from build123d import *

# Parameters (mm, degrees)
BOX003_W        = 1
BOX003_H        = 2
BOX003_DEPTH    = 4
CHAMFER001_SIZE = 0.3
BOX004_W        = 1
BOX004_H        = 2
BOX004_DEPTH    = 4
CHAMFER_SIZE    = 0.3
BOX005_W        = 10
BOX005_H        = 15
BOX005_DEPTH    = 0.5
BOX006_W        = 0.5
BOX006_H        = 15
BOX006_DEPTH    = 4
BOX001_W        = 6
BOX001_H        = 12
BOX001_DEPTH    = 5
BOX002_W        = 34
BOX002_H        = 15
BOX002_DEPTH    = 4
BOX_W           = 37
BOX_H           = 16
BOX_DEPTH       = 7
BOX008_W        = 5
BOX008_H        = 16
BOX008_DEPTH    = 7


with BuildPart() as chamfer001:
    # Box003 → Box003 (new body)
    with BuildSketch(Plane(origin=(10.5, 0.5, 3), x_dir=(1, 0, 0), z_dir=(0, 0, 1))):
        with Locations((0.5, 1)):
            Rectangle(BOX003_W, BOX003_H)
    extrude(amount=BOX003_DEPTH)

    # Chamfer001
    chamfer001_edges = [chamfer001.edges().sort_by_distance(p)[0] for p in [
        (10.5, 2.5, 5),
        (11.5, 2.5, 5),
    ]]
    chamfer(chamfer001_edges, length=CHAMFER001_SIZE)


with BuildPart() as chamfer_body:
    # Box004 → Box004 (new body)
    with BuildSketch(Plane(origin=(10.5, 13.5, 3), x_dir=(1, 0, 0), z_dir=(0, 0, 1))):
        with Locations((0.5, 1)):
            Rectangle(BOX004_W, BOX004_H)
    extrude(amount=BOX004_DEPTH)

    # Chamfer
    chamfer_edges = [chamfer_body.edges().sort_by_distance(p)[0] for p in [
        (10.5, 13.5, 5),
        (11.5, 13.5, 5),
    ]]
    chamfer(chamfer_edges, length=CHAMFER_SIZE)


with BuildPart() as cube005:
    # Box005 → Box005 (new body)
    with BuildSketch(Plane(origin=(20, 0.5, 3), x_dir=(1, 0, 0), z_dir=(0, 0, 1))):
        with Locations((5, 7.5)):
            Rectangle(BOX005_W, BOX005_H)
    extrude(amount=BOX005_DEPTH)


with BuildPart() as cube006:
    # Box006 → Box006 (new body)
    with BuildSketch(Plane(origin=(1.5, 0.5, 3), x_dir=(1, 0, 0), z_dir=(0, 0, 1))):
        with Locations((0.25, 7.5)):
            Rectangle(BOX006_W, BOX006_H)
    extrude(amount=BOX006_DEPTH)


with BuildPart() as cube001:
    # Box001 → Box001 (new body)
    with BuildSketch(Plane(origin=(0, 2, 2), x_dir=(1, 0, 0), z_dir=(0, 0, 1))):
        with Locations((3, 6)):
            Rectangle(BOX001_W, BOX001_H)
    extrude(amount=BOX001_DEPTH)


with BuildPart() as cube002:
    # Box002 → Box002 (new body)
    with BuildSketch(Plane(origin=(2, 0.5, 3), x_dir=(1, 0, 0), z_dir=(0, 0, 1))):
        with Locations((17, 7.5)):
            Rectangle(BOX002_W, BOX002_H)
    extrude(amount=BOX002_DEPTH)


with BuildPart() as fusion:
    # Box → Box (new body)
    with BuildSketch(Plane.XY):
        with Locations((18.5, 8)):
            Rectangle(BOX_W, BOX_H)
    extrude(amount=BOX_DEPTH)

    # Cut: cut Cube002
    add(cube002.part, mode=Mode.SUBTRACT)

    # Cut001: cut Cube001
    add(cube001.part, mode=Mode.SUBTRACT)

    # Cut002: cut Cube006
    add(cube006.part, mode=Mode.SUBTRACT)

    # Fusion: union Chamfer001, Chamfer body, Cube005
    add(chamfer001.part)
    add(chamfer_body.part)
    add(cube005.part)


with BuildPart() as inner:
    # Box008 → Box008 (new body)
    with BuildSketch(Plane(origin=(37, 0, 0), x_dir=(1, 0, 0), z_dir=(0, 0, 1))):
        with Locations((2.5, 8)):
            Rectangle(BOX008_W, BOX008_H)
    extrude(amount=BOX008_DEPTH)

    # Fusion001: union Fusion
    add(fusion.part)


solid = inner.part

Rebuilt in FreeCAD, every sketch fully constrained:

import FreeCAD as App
import Part
import Sketcher
from FreeCAD import Vector
Q = App.Units.Quantity


def edges_at(feature, points):
    """Names of the edges that pass closest to the given points."""
    edges = feature.Shape.Edges
    near = lambda p: min(range(len(edges)), key=lambda i: edges[i].distToShape(Part.Vertex(*p))[0])
    return sorted({f"Edge{near(p) + 1}" for p in points})

doc = App.newDocument("Part")
params = doc.addObject("Spreadsheet::Sheet", "Params")
for row, (alias, value) in enumerate([
    ("sketch1_width", "1 mm"),
    ("sketch1_height", "2 mm"),
    ("pad1_length", "4 mm"),
    ("chamfer_size", "0.3 mm"),
    ("sketch2_width", "1 mm"),
    ("sketch2_height", "2 mm"),
    ("pad2_length", "4 mm"),
    ("chamfer2_size", "0.3 mm"),
    ("sketch3_width", "10 mm"),
    ("sketch3_height", "15 mm"),
    ("pad3_length", "0.5 mm"),
    ("sketch4_height", "15 mm"),
    ("sketch4_width", "0.5 mm"),
    ("pad4_length", "4 mm"),
    ("sketch5_width", "6 mm"),
    ("sketch5_height", "12 mm"),
    ("pad5_length", "5 mm"),
    ("sketch6_width", "34 mm"),
    ("sketch6_height", "15 mm"),
    ("pad6_length", "4 mm"),
    ("sketch7_width", "37 mm"),
    ("sketch7_height", "16 mm"),
    ("pad7_length", "7 mm"),
    ("sketch8_width", "5 mm"),
    ("sketch8_height", "16 mm"),
    ("pad8_length", "7 mm"),
], start=1):
    params.set(f"A{row}", alias)
    params.set(f"B{row}", "=" + value)
    params.setAlias(f"B{row}", alias)

body = doc.addObject("PartDesign::Body", "Body")

sketch1 = body.newObject("Sketcher::SketchObject", "Sketch")
sketch1.AttachmentSupport = (doc.getObject("XY_Plane"), [""])
sketch1.MapMode = "FlatFace"
sketch1.AttachmentOffset = App.Placement(Vector(0, 0, 3), App.Rotation())
sketch1.addGeometry([
    Part.LineSegment(Vector(10.5, 2.5, 0), Vector(10.5, 0.5, 0)),
    Part.LineSegment(Vector(10.5, 0.5, 0), Vector(11.5, 0.5, 0)),
    Part.LineSegment(Vector(11.5, 0.5, 0), Vector(11.5, 2.5, 0)),
    Part.LineSegment(Vector(11.5, 2.5, 0), Vector(10.5, 2.5, 0)),
], False)
sketch1.addConstraint([
    Sketcher.Constraint("Coincident", 0, 2, 1, 1),
    Sketcher.Constraint("Coincident", 1, 2, 2, 1),
    Sketcher.Constraint("Coincident", 2, 2, 3, 1),
    Sketcher.Constraint("Coincident", 3, 2, 0, 1),
    Sketcher.Constraint("Vertical", 0),
    Sketcher.Constraint("Horizontal", 1),
    Sketcher.Constraint("Vertical", 2),
    Sketcher.Constraint("Horizontal", 3),
    Sketcher.Constraint("DistanceX", 1, 1, 1, 2, Q("1 mm")),
    Sketcher.Constraint("DistanceY", 0, 2, 0, 1, Q("2 mm")),
    Sketcher.Constraint("DistanceX", -1, 1, 0, 2, Q("10.5 mm")),
    Sketcher.Constraint("DistanceY", -1, 1, 0, 2, Q("0.5 mm")),
])
sketch1.setExpression("Constraints[8]", "Params.sketch1_width")
sketch1.setExpression("Constraints[9]", "Params.sketch1_height")
pad1 = body.newObject("PartDesign::Pad", "Pad")
pad1.Profile = sketch1
pad1.setExpression("Length", "Params.pad1_length")
doc.recompute()

chamfer = body.newObject("PartDesign::Chamfer", "Chamfer")
chamfer.Base = (pad1, edges_at(pad1, [(10.5, 2.5, 5), (11.5, 2.5, 5)]))
chamfer.setExpression("Size", "Params.chamfer_size")
body2 = doc.addObject("PartDesign::Body", "Body001")

sketch2 = body2.newObject("Sketcher::SketchObject", "Sketch001")
sketch2.AttachmentSupport = (doc.getObject("XY_Plane001"), [""])
sketch2.MapMode = "FlatFace"
sketch2.AttachmentOffset = App.Placement(Vector(0, 0, 3), App.Rotation())
sketch2.addGeometry([
    Part.LineSegment(Vector(10.5, 15.5, 0), Vector(10.5, 13.5, 0)),
    Part.LineSegment(Vector(10.5, 13.5, 0), Vector(11.5, 13.5, 0)),
    Part.LineSegment(Vector(11.5, 13.5, 0), Vector(11.5, 15.5, 0)),
    Part.LineSegment(Vector(11.5, 15.5, 0), Vector(10.5, 15.5, 0)),
], False)
sketch2.addConstraint([
    Sketcher.Constraint("Coincident", 0, 2, 1, 1),
    Sketcher.Constraint("Coincident", 1, 2, 2, 1),
    Sketcher.Constraint("Coincident", 2, 2, 3, 1),
    Sketcher.Constraint("Coincident", 3, 2, 0, 1),
    Sketcher.Constraint("Vertical", 0),
    Sketcher.Constraint("Horizontal", 1),
    Sketcher.Constraint("Vertical", 2),
    Sketcher.Constraint("Horizontal", 3),
    Sketcher.Constraint("DistanceX", 1, 1, 1, 2, Q("1 mm")),
    Sketcher.Constraint("DistanceY", 0, 2, 0, 1, Q("2 mm")),
    Sketcher.Constraint("DistanceX", -1, 1, 0, 2, Q("10.5 mm")),
    Sketcher.Constraint("DistanceY", -1, 1, 0, 2, Q("13.5 mm")),
])
sketch2.setExpression("Constraints[8]", "Params.sketch2_width")
sketch2.setExpression("Constraints[9]", "Params.sketch2_height")
pad2 = body2.newObject("PartDesign::Pad", "Pad001")
pad2.Profile = sketch2
pad2.setExpression("Length", "Params.pad2_length")
doc.recompute()

chamfer2 = body2.newObject("PartDesign::Chamfer", "Chamfer001")
chamfer2.Base = (pad2, edges_at(pad2, [(10.5, 13.5, 5), (11.5, 13.5, 5)]))
chamfer2.setExpression("Size", "Params.chamfer2_size")
body3 = doc.addObject("PartDesign::Body", "Body002")

sketch3 = body3.newObject("Sketcher::SketchObject", "Sketch002")
sketch3.AttachmentSupport = (doc.getObject("XY_Plane002"), [""])
sketch3.MapMode = "FlatFace"
sketch3.AttachmentOffset = App.Placement(Vector(0, 0, 3), App.Rotation())
sketch3.addGeometry([
    Part.LineSegment(Vector(20, 16, 0), Vector(20, 0, 0)),
    Part.LineSegment(Vector(20, 0, 0), Vector(30, 0, 0)),
    Part.LineSegment(Vector(30, 0, 0), Vector(30, 16, 0)),
    Part.LineSegment(Vector(30, 16, 0), Vector(20, 16, 0)),
], False)
sketch3.addConstraint([
    Sketcher.Constraint("Coincident", 0, 2, 1, 1),
    Sketcher.Constraint("Coincident", 1, 2, 2, 1),
    Sketcher.Constraint("Coincident", 2, 2, 3, 1),
    Sketcher.Constraint("Coincident", 3, 2, 0, 1),
    Sketcher.Constraint("Vertical", 0),
    Sketcher.Constraint("Horizontal", 1),
    Sketcher.Constraint("Vertical", 2),
    Sketcher.Constraint("Horizontal", 3),
    Sketcher.Constraint("DistanceX", 1, 1, 1, 2, Q("10 mm")),
    Sketcher.Constraint("DistanceY", 0, 2, 0, 1, Q("15 mm")),
    Sketcher.Constraint("DistanceX", -1, 1, 0, 2, Q("20 mm")),
    Sketcher.Constraint("DistanceY", -1, 1, 0, 2, Q("0.5 mm")),
])
sketch3.setExpression("Constraints[8]", "Params.sketch3_width")
sketch3.setExpression("Constraints[9]", "Params.sketch3_height")
pad3 = body3.newObject("PartDesign::Pad", "Pad002")
pad3.Profile = sketch3
pad3.setExpression("Length", "Params.pad3_length")
body4 = doc.addObject("PartDesign::Body", "Body003")

sketch4 = body4.newObject("Sketcher::SketchObject", "Sketch003")
sketch4.AttachmentSupport = (doc.getObject("XY_Plane003"), [""])
sketch4.MapMode = "FlatFace"
sketch4.AttachmentOffset = App.Placement(Vector(0, 0, 3), App.Rotation())
sketch4.addGeometry([
    Part.LineSegment(Vector(1.5, 15.5, 0), Vector(1.5, 0.5, 0)),
    Part.LineSegment(Vector(1.5, 0.5, 0), Vector(2, 0.5, 0)),
    Part.LineSegment(Vector(2, 0.5, 0), Vector(2, 15.5, 0)),
    Part.LineSegment(Vector(2, 15.5, 0), Vector(1.5, 15.5, 0)),
], False)
sketch4.addConstraint([
    Sketcher.Constraint("Coincident", 0, 2, 1, 1),
    Sketcher.Constraint("Coincident", 1, 2, 2, 1),
    Sketcher.Constraint("Coincident", 2, 2, 3, 1),
    Sketcher.Constraint("Coincident", 3, 2, 0, 1),
    Sketcher.Constraint("Vertical", 0),
    Sketcher.Constraint("Horizontal", 1),
    Sketcher.Constraint("Vertical", 2),
    Sketcher.Constraint("Horizontal", 3),
    Sketcher.Constraint("DistanceY", 0, 2, 0, 1, Q("15 mm")),
    Sketcher.Constraint("DistanceX", 1, 1, 1, 2, Q("0.5 mm")),
    Sketcher.Constraint("DistanceX", -1, 1, 1, 2, Q("2 mm")),
    Sketcher.Constraint("DistanceY", -1, 1, 0, 2, Q("0.5 mm")),
])
sketch4.setExpression("Constraints[8]", "Params.sketch4_height")
sketch4.setExpression("Constraints[9]", "Params.sketch4_width")
pad4 = body4.newObject("PartDesign::Pad", "Pad003")
pad4.Profile = sketch4
pad4.setExpression("Length", "Params.pad4_length")
body5 = doc.addObject("PartDesign::Body", "Body004")

sketch5 = body5.newObject("Sketcher::SketchObject", "Sketch004")
sketch5.AttachmentSupport = (doc.getObject("XY_Plane004"), [""])
sketch5.MapMode = "FlatFace"
sketch5.AttachmentOffset = App.Placement(Vector(0, 0, 2), App.Rotation())
sketch5.addGeometry([
    Part.LineSegment(Vector(0, 14, 0), Vector(0, 2, 0)),
    Part.LineSegment(Vector(0, 2, 0), Vector(6, 2, 0)),
    Part.LineSegment(Vector(6, 2, 0), Vector(6, 14, 0)),
    Part.LineSegment(Vector(6, 14, 0), Vector(0, 14, 0)),
], False)
sketch5.addConstraint([
    Sketcher.Constraint("Coincident", 0, 2, 1, 1),
    Sketcher.Constraint("Coincident", 1, 2, 2, 1),
    Sketcher.Constraint("Coincident", 2, 2, 3, 1),
    Sketcher.Constraint("Coincident", 3, 2, 0, 1),
    Sketcher.Constraint("Vertical", 0),
    Sketcher.Constraint("Horizontal", 1),
    Sketcher.Constraint("Vertical", 2),
    Sketcher.Constraint("Horizontal", 3),
    Sketcher.Constraint("PointOnObject", 0, 2, -2),
    Sketcher.Constraint("DistanceX", 1, 1, 1, 2, Q("6 mm")),
    Sketcher.Constraint("DistanceY", 0, 2, 0, 1, Q("12 mm")),
    Sketcher.Constraint("DistanceY", -1, 1, 0, 2, Q("2 mm")),
])
sketch5.setExpression("Constraints[9]", "Params.sketch5_width")
sketch5.setExpression("Constraints[10]", "Params.sketch5_height")
pad5 = body5.newObject("PartDesign::Pad", "Pad004")
pad5.Profile = sketch5
pad5.setExpression("Length", "Params.pad5_length")
body6 = doc.addObject("PartDesign::Body", "Body005")

sketch6 = body6.newObject("Sketcher::SketchObject", "Sketch005")
sketch6.AttachmentSupport = (doc.getObject("XY_Plane005"), [""])
sketch6.MapMode = "FlatFace"
sketch6.AttachmentOffset = App.Placement(Vector(0, 0, 3), App.Rotation())
sketch6.addGeometry([
    Part.LineSegment(Vector(2, 16, 0), Vector(2, 0, 0)),
    Part.LineSegment(Vector(2, 0, 0), Vector(36, 0, 0)),
    Part.LineSegment(Vector(36, 0, 0), Vector(36, 16, 0)),
    Part.LineSegment(Vector(36, 16, 0), Vector(2, 16, 0)),
], False)
sketch6.addConstraint([
    Sketcher.Constraint("Coincident", 0, 2, 1, 1),
    Sketcher.Constraint("Coincident", 1, 2, 2, 1),
    Sketcher.Constraint("Coincident", 2, 2, 3, 1),
    Sketcher.Constraint("Coincident", 3, 2, 0, 1),
    Sketcher.Constraint("Vertical", 0),
    Sketcher.Constraint("Horizontal", 1),
    Sketcher.Constraint("Vertical", 2),
    Sketcher.Constraint("Horizontal", 3),
    Sketcher.Constraint("DistanceX", 1, 1, 1, 2, Q("34 mm")),
    Sketcher.Constraint("DistanceY", 0, 2, 0, 1, Q("15 mm")),
    Sketcher.Constraint("DistanceX", -1, 1, 0, 2, Q("2 mm")),
    Sketcher.Constraint("DistanceY", -1, 1, 0, 2, Q("0.5 mm")),
])
sketch6.setExpression("Constraints[8]", "Params.sketch6_width")
sketch6.setExpression("Constraints[9]", "Params.sketch6_height")
pad6 = body6.newObject("PartDesign::Pad", "Pad005")
pad6.Profile = sketch6
pad6.setExpression("Length", "Params.pad6_length")
body7 = doc.addObject("PartDesign::Body", "Body006")

sketch7 = body7.newObject("Sketcher::SketchObject", "Sketch006")
sketch7.AttachmentSupport = (doc.getObject("XY_Plane006"), [""])
sketch7.MapMode = "FlatFace"
sketch7.addGeometry([
    Part.LineSegment(Vector(0, 16, 0), Vector(0, 0, 0)),
    Part.LineSegment(Vector(0, 0, 0), Vector(37, 0, 0)),
    Part.LineSegment(Vector(37, 0, 0), Vector(37, 16, 0)),
    Part.LineSegment(Vector(37, 16, 0), Vector(0, 16, 0)),
], False)
sketch7.addConstraint([
    Sketcher.Constraint("Coincident", 0, 2, 1, 1),
    Sketcher.Constraint("Coincident", 1, 2, 2, 1),
    Sketcher.Constraint("Coincident", 2, 2, 3, 1),
    Sketcher.Constraint("Coincident", 3, 2, 0, 1),
    Sketcher.Constraint("Vertical", 0),
    Sketcher.Constraint("Horizontal", 1),
    Sketcher.Constraint("Vertical", 2),
    Sketcher.Constraint("Horizontal", 3),
    Sketcher.Constraint("Coincident", 0, 2, -1, 1),
    Sketcher.Constraint("DistanceX", 1, 1, 1, 2, Q("37 mm")),
    Sketcher.Constraint("DistanceY", 0, 2, 0, 1, Q("16 mm")),
])
sketch7.setExpression("Constraints[9]", "Params.sketch7_width")
sketch7.setExpression("Constraints[10]", "Params.sketch7_height")
pad7 = body7.newObject("PartDesign::Pad", "Pad006")
pad7.Profile = sketch7
pad7.setExpression("Length", "Params.pad7_length")
doc.recompute()

boolean = body7.newObject("PartDesign::Boolean", "Boolean")
boolean.Type = "Cut"
boolean.addObjects([body6])
doc.recompute()

boolean2 = body7.newObject("PartDesign::Boolean", "Boolean001")
boolean2.Type = "Cut"
boolean2.addObjects([body5])
doc.recompute()

boolean3 = body7.newObject("PartDesign::Boolean", "Boolean002")
boolean3.Type = "Cut"
boolean3.addObjects([body4])
doc.recompute()

boolean4 = body7.newObject("PartDesign::Boolean", "Boolean003")
boolean4.Type = "Fuse"
boolean4.addObjects([body])
doc.recompute()

boolean5 = body7.newObject("PartDesign::Boolean", "Boolean004")
boolean5.Type = "Fuse"
boolean5.addObjects([body2])
doc.recompute()

boolean6 = body7.newObject("PartDesign::Boolean", "Boolean005")
boolean6.Type = "Fuse"
boolean6.addObjects([body3])
body8 = doc.addObject("PartDesign::Body", "Body007")

sketch8 = body8.newObject("Sketcher::SketchObject", "Sketch007")
sketch8.AttachmentSupport = (doc.getObject("XY_Plane007"), [""])
sketch8.MapMode = "FlatFace"
sketch8.addGeometry([
    Part.LineSegment(Vector(37, 16, 0), Vector(37, 0, 0)),
    Part.LineSegment(Vector(37, 0, 0), Vector(42, 0, 0)),
    Part.LineSegment(Vector(42, 0, 0), Vector(42, 16, 0)),
    Part.LineSegment(Vector(42, 16, 0), Vector(37, 16, 0)),
], False)
sketch8.addConstraint([
    Sketcher.Constraint("Coincident", 0, 2, 1, 1),
    Sketcher.Constraint("Coincident", 1, 2, 2, 1),
    Sketcher.Constraint("Coincident", 2, 2, 3, 1),
    Sketcher.Constraint("Coincident", 3, 2, 0, 1),
    Sketcher.Constraint("Vertical", 0),
    Sketcher.Constraint("Horizontal", 1),
    Sketcher.Constraint("Vertical", 2),
    Sketcher.Constraint("Horizontal", 3),
    Sketcher.Constraint("PointOnObject", 0, 2, -1),
    Sketcher.Constraint("DistanceX", 1, 1, 1, 2, Q("5 mm")),
    Sketcher.Constraint("DistanceY", 0, 2, 0, 1, Q("16 mm")),
    Sketcher.Constraint("DistanceX", -1, 1, 0, 2, Q("37 mm")),
])
sketch8.setExpression("Constraints[9]", "Params.sketch8_width")
sketch8.setExpression("Constraints[10]", "Params.sketch8_height")
pad8 = body8.newObject("PartDesign::Pad", "Pad007")
pad8.Profile = sketch8
pad8.setExpression("Length", "Params.pad8_length")
doc.recompute()

boolean7 = body8.newObject("PartDesign::Boolean", "Boolean006")
boolean7.Type = "Fuse"
boolean7.addObjects([body7])

doc.recompute()
